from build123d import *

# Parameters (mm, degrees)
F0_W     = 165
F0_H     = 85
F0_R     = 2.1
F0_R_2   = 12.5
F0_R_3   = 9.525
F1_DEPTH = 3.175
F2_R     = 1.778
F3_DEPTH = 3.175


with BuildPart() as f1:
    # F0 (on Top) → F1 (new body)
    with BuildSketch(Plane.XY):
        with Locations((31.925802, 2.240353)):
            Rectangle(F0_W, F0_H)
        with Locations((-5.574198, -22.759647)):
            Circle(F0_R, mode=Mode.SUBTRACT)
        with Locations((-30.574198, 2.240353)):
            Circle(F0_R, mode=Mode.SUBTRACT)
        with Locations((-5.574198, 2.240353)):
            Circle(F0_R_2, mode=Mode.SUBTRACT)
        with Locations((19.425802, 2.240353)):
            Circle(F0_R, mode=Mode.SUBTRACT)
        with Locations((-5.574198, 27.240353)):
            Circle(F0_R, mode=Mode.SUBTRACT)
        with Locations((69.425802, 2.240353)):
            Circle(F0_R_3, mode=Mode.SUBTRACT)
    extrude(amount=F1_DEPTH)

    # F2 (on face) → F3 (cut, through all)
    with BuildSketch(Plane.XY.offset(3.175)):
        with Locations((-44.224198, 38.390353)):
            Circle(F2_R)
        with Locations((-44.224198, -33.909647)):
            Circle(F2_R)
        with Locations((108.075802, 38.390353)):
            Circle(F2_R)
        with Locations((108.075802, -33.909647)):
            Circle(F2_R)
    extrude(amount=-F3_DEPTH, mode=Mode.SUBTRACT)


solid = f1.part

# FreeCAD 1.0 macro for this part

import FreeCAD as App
import Part
import Sketcher
Q = App.Units.Quantity


def add_polygon(sketch, points):
    """Adds a closed chain of lines whose ends are joined by coincident constraints."""
    first, n = sketch.GeometryCount, len(points)
    for a, b in zip(points, points[1:] + points[:1]):
        sketch.addGeometry(Part.LineSegment(App.Vector(*a, 0), App.Vector(*b, 0)), False)
    for i in range(n):
        sketch.addConstraint(Sketcher.Constraint("Coincident", first + i, 2, first + (i + 1) % n, 1))

doc = App.newDocument("Part")
body = doc.addObject("PartDesign::Body", "Body")

# Sketch on XY plane
sketch1 = body.newObject("Sketcher::SketchObject", "Sketch")
sketch1.AttachmentSupport = (doc.getObject("XY_Plane"), [""])
sketch1.MapMode = "FlatFace"
add_polygon(sketch1, [(-50.6, 44.7), (-50.6, -40.3), (114.4, -40.3), (114.4, 44.7)])  # lines 0-3
sketch1.addGeometry(Part.Circle(App.Vector(-5.6, -22.8, 0), App.Vector(0, 0, 1), 2.1), False)  # 4
sketch1.addGeometry(Part.Circle(App.Vector(-30.6, 2.2, 0), App.Vector(0, 0, 1), 2.1), False)  # 5
sketch1.addGeometry(Part.Circle(App.Vector(-5.6, 2.2, 0), App.Vector(0, 0, 1), 12.5), False)  # 6
sketch1.addGeometry(Part.Circle(App.Vector(19.4, 2.2, 0), App.Vector(0, 0, 1), 2.1), False)  # 7
sketch1.addGeometry(Part.Circle(App.Vector(-5.6, 27.2, 0), App.Vector(0, 0, 1), 2.1), False)  # 8
sketch1.addGeometry(Part.Circle(App.Vector(69.4, 2.2, 0), App.Vector(0, 0, 1), 9.5), False)  # 9
sketch1.addConstraint(Sketcher.Constraint("Vertical", 0))
sketch1.addConstraint(Sketcher.Constraint("Horizontal", 1))
sketch1.addConstraint(Sketcher.Constraint("Vertical", 2))
sketch1.addConstraint(Sketcher.Constraint("Horizontal", 3))
sketch1.addConstraint(Sketcher.Constraint("Equal", 4, 5))
sketch1.addConstraint(Sketcher.Constraint("Equal", 5, 7))
sketch1.addConstraint(Sketcher.Constraint("Equal", 7, 8))
sketch1.addConstraint(Sketcher.Constraint("Horizontal", 5, 3, 6, 3))
sketch1.addConstraint(Sketcher.Constraint("Horizontal", 6, 3, 7, 3))
sketch1.addConstraint(Sketcher.Constraint("Horizontal", 7, 3, 9, 3))
sketch1.addConstraint(Sketcher.Constraint("Vertical", 4, 3, 6, 3))
sketch1.addConstraint(Sketcher.Constraint("Vertical", 6, 3, 8, 3))
sketch1.addConstraint(Sketcher.Constraint("Diameter", 6, Q("25 mm")))
sketch1.addConstraint(Sketcher.Constraint("Diameter", 4, Q("4.2 mm")))
sketch1.addConstraint(Sketcher.Constraint("Diameter", 9, Q("19.05 mm")))
sketch1.addConstraint(Sketcher.Constraint("DistanceX", 1, 1, 1, 2, Q("165 mm")))
sketch1.addConstraint(Sketcher.Constraint("DistanceY", 0, 2, 0, 1, Q("85 mm")))
sketch1.addConstraint(Sketcher.Constraint("DistanceX", 5, 3, 4, 3, Q("25 mm")))
sketch1.addConstraint(Sketcher.Constraint("DistanceY", 4, 3, 5, 3, Q("25 mm")))
sketch1.addConstraint(Sketcher.Constraint("DistanceX", 6, 3, 7, 3, Q("25 mm")))
sketch1.addConstraint(Sketcher.Constraint("DistanceY", 6, 3, 8, 3, Q("25 mm")))
sketch1.addConstraint(Sketcher.Constraint("DistanceX", 7, 3, 9, 3, Q("50 mm")))
sketch1.addConstraint(Sketcher.Constraint("DistanceX", 0, 2, 5, 3, Q("20 mm")))
sketch1.addConstraint(Sketcher.Constraint("DistanceY", 0, 2, 5, 3, Q("42.5 mm")))
sketch1.addConstraint(Sketcher.Constraint("DistanceX", 0, 2, -1, 1, Q("50.574198 mm")))
sketch1.addConstraint(Sketcher.Constraint("DistanceY", 4, 3, -1, 1, Q("22.759647 mm")))
pad1 = body.newObject("PartDesign::Pad", "Pad")
pad1.Profile = sketch1
pad1.Length = 3.175

# Sketch on XY plane
sketch2 = body.newObject("Sketcher::SketchObject", "Sketch001")
sketch2.AttachmentSupport = (doc.getObject("XY_Plane"), [""])
sketch2.MapMode = "FlatFace"
sketch2.AttachmentOffset = App.Placement(App.Vector(0, 0, 3.175), App.Rotation())
sketch2.addGeometry(Part.Circle(App.Vector(-44.2, 38.4, 0), App.Vector(0, 0, 1), 1.8), False)
sketch2.addGeometry(Part.Circle(App.Vector(-44.2, -33.9, 0), App.Vector(0, 0, 1), 1.8), False)
sketch2.addGeometry(Part.Circle(App.Vector(108.1, 38.4, 0), App.Vector(0, 0, 1), 1.8), False)
sketch2.addGeometry(Part.Circle(App.Vector(108.1, -33.9, 0), App.Vector(0, 0, 1), 1.8), False)
sketch2.addConstraint(Sketcher.Constraint("Equal", 0, 1))
sketch2.addConstraint(Sketcher.Constraint("Equal", 1, 2))
sketch2.addConstraint(Sketcher.Constraint("Equal", 2, 3))
sketch2.addConstraint(Sketcher.Constraint("Horizontal", 0, 3, 2, 3))
sketch2.addConstraint(Sketcher.Constraint("Horizontal", 1, 3, 3, 3))
sketch2.addConstraint(Sketcher.Constraint("Vertical", 0, 3, 1, 3))
sketch2.addConstraint(Sketcher.Constraint("Vertical", 2, 3, 3, 3))
sketch2.addConstraint(Sketcher.Constraint("Diameter", 0, Q("3.556 mm")))
sketch2.addConstraint(Sketcher.Constraint("DistanceY", 1, 3, 0, 3, Q("72.3 mm")))
sketch2.addConstraint(Sketcher.Constraint("DistanceX", 0, 3, 2, 3, Q("152.3 mm")))
sketch2.addConstraint(Sketcher.Constraint("DistanceX", -1, 1, 2, 3, Q("108.075802 mm")))
sketch2.addConstraint(Sketcher.Constraint("DistanceY", -1, 1, 0, 3, Q("38.390353 mm")))
pocket1 = body.newObject("PartDesign::Pocket", "Pocket")
pocket1.Profile = sketch2
pocket1.Type = "ThroughAll"

doc.recompute()
